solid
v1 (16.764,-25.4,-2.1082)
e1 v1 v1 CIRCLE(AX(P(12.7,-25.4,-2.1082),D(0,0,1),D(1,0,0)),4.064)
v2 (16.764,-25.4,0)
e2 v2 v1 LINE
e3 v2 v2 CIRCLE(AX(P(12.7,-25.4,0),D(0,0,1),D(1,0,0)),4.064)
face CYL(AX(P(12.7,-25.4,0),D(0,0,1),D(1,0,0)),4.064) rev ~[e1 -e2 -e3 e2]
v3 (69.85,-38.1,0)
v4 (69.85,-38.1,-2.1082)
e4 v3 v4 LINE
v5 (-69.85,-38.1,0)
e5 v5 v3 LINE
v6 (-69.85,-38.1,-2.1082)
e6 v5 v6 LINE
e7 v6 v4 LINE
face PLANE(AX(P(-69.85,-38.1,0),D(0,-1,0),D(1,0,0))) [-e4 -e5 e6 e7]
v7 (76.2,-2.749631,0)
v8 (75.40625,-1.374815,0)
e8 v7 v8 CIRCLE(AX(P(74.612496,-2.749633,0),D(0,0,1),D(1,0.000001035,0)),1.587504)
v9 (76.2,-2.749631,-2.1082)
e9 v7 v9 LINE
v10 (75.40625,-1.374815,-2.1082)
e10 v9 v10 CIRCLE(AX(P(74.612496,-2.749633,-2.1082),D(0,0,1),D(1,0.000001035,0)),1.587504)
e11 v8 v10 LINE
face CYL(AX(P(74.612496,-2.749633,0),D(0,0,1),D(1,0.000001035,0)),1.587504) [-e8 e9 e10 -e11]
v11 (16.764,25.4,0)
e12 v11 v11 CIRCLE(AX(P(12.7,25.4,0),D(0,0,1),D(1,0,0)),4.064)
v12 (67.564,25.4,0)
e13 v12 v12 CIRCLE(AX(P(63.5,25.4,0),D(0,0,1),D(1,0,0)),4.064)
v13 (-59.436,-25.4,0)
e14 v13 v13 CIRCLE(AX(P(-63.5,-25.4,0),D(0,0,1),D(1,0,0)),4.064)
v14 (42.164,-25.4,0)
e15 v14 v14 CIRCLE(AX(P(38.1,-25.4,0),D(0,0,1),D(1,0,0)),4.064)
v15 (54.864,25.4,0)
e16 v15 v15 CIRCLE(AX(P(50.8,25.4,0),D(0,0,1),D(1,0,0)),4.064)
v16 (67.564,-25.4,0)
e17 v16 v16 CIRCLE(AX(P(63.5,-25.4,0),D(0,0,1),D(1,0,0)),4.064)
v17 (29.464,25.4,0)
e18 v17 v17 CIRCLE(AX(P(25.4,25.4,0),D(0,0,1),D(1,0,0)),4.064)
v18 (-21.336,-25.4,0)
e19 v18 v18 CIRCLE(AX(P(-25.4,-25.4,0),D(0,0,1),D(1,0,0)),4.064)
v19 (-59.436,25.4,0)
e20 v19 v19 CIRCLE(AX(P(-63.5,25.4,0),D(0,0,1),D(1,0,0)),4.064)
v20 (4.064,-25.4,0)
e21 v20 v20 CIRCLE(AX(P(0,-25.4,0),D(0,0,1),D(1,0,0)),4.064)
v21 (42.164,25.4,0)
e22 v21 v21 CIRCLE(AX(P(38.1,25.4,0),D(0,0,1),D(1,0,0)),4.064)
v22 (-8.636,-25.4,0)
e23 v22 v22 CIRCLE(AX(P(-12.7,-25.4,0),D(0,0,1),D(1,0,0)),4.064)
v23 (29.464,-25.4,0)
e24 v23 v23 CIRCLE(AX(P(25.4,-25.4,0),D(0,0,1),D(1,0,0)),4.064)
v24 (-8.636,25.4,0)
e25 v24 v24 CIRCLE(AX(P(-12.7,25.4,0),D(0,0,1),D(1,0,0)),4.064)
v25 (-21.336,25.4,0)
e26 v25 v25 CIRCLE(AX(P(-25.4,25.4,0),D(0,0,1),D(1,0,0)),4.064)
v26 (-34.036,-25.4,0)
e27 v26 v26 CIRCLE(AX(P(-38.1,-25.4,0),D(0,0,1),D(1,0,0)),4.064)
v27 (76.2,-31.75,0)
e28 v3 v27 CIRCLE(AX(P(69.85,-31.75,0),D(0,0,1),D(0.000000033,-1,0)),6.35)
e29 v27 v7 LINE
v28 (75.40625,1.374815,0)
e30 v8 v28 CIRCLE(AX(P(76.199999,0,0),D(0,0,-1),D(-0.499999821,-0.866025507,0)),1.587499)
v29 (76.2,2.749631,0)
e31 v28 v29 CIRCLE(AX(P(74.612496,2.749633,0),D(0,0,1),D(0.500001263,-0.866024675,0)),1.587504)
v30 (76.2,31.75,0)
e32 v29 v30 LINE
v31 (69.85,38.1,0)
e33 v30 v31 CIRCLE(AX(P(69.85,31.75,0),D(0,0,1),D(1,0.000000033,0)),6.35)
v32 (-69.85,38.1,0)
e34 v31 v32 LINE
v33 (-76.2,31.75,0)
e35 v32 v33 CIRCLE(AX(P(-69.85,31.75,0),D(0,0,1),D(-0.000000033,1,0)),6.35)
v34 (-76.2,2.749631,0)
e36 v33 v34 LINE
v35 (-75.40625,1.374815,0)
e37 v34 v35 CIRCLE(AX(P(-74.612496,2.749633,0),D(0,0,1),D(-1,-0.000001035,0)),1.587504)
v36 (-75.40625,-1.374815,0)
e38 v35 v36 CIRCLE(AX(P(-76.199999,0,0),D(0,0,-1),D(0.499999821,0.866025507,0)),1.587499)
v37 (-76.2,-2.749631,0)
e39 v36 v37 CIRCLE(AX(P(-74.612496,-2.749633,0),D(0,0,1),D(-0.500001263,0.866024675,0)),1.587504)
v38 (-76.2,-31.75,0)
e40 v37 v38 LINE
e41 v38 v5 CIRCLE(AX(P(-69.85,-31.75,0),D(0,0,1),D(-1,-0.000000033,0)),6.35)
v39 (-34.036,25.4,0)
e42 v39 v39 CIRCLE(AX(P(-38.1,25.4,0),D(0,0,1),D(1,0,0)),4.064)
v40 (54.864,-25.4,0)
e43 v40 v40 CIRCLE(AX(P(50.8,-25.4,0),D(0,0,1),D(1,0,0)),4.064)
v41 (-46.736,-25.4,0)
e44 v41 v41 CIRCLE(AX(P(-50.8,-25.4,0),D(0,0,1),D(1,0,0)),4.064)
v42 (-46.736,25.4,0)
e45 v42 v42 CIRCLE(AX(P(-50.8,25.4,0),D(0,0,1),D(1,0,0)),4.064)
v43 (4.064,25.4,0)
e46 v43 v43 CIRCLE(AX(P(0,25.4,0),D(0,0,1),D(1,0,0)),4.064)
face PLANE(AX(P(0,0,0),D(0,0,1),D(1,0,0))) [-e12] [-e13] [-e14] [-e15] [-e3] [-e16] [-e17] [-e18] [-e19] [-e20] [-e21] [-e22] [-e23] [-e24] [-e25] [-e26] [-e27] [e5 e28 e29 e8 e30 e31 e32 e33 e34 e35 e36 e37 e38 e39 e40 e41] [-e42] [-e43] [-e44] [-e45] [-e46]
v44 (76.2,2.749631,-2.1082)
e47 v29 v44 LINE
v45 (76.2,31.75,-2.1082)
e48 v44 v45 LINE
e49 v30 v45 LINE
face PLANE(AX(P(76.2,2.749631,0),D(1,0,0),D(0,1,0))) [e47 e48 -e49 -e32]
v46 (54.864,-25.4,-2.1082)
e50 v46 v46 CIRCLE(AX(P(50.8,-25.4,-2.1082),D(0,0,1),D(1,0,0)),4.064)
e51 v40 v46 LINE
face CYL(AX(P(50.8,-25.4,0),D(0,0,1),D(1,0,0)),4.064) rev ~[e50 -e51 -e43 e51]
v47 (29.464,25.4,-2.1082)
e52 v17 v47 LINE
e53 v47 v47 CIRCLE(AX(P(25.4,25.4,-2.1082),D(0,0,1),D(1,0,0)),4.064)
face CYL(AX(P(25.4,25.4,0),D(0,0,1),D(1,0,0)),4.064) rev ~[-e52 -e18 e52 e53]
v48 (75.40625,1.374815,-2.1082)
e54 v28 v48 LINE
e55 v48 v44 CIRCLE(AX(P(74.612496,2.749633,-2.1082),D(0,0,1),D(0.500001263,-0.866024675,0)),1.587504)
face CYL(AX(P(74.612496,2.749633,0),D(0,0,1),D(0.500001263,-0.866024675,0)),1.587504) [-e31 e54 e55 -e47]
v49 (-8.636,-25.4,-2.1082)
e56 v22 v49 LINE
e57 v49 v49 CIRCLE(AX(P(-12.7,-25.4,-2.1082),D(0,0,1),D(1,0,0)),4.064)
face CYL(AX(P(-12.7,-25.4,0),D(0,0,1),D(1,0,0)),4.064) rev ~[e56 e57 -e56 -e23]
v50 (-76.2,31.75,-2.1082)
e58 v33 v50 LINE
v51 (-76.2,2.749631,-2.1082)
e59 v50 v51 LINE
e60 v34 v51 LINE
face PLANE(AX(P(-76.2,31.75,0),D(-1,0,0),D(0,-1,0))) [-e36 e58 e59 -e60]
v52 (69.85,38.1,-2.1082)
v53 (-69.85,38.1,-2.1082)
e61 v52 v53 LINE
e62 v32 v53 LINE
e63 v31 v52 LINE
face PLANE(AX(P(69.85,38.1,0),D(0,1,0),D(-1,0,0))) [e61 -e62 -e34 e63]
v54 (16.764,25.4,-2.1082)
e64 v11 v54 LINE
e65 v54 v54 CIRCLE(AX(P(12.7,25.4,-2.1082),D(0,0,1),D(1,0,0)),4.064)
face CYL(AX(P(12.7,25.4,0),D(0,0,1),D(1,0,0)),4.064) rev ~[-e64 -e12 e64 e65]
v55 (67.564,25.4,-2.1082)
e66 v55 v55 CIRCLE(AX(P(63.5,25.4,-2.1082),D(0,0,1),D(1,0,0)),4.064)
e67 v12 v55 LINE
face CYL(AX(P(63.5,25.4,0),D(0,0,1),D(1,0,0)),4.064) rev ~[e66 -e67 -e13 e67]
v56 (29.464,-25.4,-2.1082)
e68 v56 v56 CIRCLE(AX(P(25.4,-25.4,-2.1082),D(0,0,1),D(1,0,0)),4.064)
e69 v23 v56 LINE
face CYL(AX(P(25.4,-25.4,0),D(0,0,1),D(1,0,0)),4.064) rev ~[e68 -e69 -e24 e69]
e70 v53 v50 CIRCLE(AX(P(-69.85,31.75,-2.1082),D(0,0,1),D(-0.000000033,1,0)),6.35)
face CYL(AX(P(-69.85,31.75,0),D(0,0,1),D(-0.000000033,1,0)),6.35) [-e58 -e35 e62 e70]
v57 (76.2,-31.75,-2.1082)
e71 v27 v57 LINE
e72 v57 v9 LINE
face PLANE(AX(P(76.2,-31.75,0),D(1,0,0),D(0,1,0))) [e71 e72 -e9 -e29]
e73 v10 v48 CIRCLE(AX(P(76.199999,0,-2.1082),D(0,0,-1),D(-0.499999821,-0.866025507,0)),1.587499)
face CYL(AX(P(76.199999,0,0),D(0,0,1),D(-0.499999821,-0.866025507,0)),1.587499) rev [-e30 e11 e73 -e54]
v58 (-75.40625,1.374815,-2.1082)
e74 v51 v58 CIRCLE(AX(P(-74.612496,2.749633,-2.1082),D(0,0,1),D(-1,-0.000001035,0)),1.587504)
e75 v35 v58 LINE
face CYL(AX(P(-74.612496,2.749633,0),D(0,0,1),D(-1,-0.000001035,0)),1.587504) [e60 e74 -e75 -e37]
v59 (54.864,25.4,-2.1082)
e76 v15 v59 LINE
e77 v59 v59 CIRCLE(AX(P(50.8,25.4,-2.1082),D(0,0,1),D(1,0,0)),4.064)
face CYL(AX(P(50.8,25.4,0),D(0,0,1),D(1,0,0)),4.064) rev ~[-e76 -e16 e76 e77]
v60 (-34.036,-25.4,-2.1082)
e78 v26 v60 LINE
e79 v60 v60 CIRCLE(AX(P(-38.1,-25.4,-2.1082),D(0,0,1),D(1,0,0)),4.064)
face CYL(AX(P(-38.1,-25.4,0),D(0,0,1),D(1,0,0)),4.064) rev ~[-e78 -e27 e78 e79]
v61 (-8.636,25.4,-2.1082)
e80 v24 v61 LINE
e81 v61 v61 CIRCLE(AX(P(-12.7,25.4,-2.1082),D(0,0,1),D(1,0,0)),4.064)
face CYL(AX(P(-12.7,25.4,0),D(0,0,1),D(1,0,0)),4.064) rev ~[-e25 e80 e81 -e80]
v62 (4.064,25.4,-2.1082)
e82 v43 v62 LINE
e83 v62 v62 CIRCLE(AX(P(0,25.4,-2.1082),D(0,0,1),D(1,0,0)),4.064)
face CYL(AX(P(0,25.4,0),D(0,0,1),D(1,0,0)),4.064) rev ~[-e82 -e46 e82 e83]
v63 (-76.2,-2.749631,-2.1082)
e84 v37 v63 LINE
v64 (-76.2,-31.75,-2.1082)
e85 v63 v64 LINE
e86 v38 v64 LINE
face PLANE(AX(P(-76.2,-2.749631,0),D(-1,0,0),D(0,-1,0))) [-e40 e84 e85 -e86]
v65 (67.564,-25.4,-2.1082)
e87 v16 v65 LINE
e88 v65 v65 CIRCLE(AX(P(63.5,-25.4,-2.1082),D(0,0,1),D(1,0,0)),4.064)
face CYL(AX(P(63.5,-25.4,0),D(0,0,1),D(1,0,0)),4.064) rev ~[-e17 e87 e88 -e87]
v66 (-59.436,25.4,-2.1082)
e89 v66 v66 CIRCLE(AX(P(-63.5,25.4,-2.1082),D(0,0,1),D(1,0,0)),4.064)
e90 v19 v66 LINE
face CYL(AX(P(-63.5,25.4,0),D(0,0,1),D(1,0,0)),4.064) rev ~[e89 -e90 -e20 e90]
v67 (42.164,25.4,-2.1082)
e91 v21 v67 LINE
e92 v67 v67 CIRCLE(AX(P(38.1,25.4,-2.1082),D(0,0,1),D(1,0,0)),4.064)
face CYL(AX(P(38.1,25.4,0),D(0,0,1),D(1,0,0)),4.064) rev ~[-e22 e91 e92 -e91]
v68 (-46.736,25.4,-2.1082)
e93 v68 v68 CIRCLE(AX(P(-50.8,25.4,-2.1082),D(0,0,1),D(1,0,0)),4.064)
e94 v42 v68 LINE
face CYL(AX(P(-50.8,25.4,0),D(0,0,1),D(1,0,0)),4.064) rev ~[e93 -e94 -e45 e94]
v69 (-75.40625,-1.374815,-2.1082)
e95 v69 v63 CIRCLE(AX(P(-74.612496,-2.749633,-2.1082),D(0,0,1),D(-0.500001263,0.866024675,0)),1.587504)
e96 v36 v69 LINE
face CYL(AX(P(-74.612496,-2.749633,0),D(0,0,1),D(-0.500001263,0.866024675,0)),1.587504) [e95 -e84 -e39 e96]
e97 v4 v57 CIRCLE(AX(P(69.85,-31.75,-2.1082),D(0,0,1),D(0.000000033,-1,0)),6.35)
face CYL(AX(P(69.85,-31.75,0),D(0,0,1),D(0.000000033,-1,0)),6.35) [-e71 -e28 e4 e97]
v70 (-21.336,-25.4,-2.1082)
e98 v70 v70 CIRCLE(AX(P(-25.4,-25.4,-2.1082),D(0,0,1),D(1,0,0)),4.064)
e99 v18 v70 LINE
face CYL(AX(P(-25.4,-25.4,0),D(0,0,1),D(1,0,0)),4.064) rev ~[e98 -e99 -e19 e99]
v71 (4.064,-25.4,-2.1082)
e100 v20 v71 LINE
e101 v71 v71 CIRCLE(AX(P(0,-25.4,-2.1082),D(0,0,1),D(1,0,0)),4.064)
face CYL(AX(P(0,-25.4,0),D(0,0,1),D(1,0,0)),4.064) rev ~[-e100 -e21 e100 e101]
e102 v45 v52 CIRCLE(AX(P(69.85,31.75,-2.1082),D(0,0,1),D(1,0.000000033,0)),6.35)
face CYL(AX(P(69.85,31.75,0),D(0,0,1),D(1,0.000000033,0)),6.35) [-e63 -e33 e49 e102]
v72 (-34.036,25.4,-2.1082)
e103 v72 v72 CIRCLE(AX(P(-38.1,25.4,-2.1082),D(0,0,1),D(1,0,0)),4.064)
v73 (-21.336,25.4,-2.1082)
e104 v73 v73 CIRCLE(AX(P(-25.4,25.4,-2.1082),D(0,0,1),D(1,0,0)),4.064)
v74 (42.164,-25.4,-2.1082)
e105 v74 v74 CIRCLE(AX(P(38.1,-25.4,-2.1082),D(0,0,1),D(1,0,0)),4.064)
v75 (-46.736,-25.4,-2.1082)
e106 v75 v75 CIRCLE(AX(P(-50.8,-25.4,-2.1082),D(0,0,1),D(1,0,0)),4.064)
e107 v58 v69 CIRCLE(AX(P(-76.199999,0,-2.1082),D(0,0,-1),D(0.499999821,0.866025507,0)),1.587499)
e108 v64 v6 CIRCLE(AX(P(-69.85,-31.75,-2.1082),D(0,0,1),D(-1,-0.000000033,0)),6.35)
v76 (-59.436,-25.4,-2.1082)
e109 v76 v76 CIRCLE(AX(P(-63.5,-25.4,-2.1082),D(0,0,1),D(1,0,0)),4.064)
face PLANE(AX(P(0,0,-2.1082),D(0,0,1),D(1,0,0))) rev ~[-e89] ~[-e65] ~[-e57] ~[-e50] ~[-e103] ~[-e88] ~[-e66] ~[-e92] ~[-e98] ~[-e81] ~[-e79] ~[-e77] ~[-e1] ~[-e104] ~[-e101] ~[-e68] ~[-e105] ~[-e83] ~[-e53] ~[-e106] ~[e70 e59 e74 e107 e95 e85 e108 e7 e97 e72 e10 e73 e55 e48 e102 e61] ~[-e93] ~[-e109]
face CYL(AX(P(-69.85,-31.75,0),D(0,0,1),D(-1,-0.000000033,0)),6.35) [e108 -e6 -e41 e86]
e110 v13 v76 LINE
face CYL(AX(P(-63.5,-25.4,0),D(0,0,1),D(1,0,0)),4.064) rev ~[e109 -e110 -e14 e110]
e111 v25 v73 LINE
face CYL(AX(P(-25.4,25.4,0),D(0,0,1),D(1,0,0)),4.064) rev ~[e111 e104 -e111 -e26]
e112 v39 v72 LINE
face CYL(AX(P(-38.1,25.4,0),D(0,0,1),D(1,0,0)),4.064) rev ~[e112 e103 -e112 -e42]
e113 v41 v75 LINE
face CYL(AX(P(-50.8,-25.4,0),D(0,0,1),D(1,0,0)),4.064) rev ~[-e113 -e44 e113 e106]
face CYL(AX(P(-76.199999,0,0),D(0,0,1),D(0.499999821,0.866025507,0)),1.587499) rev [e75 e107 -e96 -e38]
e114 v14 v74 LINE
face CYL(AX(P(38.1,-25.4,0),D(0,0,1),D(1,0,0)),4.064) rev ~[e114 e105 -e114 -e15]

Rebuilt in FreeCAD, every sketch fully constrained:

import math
import FreeCAD as App
import Part
import Sketcher
Q = App.Units.Quantity

doc = App.newDocument("Part")
body = doc.addObject("PartDesign::Body", "Body")

# Sketch on XY plane
sketch1 = body.newObject("Sketcher::SketchObject", "Sketch")
sketch1.AttachmentSupport = (doc.getObject("XY_Plane"), [""])
sketch1.MapMode = "FlatFace"
sketch1.addGeometry([
    Part.LineSegment(App.Vector(69.85, 38.1, 0), App.Vector(-69.85, 38.1, 0)),  # 0
    Part.ArcOfCircle(Part.Circle(App.Vector(-69.85, 31.75, 0), App.Vector(0, 0, 1), 6.35), math.radians(90.000002), math.radians(179.999998)),  # 1
    Part.LineSegment(App.Vector(-76.2, 31.75, 0), App.Vector(-76.2, 2.749631, 0)),  # 2
    Part.ArcOfCircle(Part.Circle(App.Vector(-74.612496, 2.749633, 0), App.Vector(0, 0, 1), 1.587504), math.radians(-179.999941), math.radians(-120.000084)),  # 3
    Part.ArcOfCircle(Part.Circle(App.Vector(-76.199999, 0, 0), App.Vector(0, 0, 1), 1.587499), math.radians(-60.000012), math.radians(60.000012)),  # 4
    Part.ArcOfCircle(Part.Circle(App.Vector(-74.612496, -2.749633, 0), App.Vector(0, 0, 1), 1.587504), math.radians(120.000084), math.radians(179.999941)),  # 5
    Part.LineSegment(App.Vector(-76.2, -2.749631, 0), App.Vector(-76.2, -31.75, 0)),  # 6
    Part.ArcOfCircle(Part.Circle(App.Vector(-69.85, -31.75, 0), App.Vector(0, 0, 1), 6.35), math.radians(-179.999998), math.radians(-90.000002)),  # 7
    Part.LineSegment(App.Vector(-69.85, -38.1, 0), App.Vector(69.85, -38.1, 0)),  # 8
    Part.ArcOfCircle(Part.Circle(App.Vector(69.85, -31.75, 0), App.Vector(0, 0, 1), 6.35), math.radians(-89.999998), math.radians(-0.000002)),  # 9
    Part.LineSegment(App.Vector(76.2, -31.75, 0), App.Vector(76.2, -2.749631, 0)),  # 10
    Part.ArcOfCircle(Part.Circle(App.Vector(74.612496, -2.749633, 0), App.Vector(0, 0, 1), 1.587504), math.radians(0.000059), math.radians(59.999916)),  # 11
    Part.ArcOfCircle(Part.Circle(App.Vector(76.199999, 0, 0), App.Vector(0, 0, 1), 1.587499), math.radians(119.999988), math.radians(240.000012)),  # 12
    Part.ArcOfCircle(Part.Circle(App.Vector(74.612496, 2.749633, 0), App.Vector(0, 0, 1), 1.587504), math.radians(-59.999916), math.radians(-0.000059)),  # 13
    Part.LineSegment(App.Vector(76.2, 2.749631, 0), App.Vector(76.2, 31.75, 0)),  # 14
    Part.ArcOfCircle(Part.Circle(App.Vector(69.85, 31.75, 0), App.Vector(0, 0, 1), 6.35), math.radians(0.000002), math.radians(89.999998)),  # 15
    Part.Circle(App.Vector(-63.5, -25.4, 0), App.Vector(0, 0, 1), 4.064),  # 16
    Part.Circle(App.Vector(-50.8, -25.4, 0), App.Vector(0, 0, 1), 4.064),  # 17
    Part.Circle(App.Vector(-38.1, -25.4, 0), App.Vector(0, 0, 1), 4.064),  # 18
    Part.Circle(App.Vector(-25.4, -25.4, 0), App.Vector(0, 0, 1), 4.064),  # 19
    Part.Circle(App.Vector(-12.7, -25.4, 0), App.Vector(0, 0, 1), 4.064),  # 20
    Part.Circle(App.Vector(0, -25.4, 0), App.Vector(0, 0, 1), 4.064),  # 21
    Part.Circle(App.Vector(12.7, -25.4, 0), App.Vector(0, 0, 1), 4.064),  # 22
    Part.Circle(App.Vector(25.4, -25.4, 0), App.Vector(0, 0, 1), 4.064),  # 23
    Part.Circle(App.Vector(38.1, -25.4, 0), App.Vector(0, 0, 1), 4.064),  # 24
    Part.Circle(App.Vector(50.8, -25.4, 0), App.Vector(0, 0, 1), 4.064),  # 25
    Part.Circle(App.Vector(63.5, -25.4, 0), App.Vector(0, 0, 1), 4.064),  # 26
    Part.Circle(App.Vector(-63.5, 25.4, 0), App.Vector(0, 0, 1), 4.064),  # 27
    Part.Circle(App.Vector(-50.8, 25.4, 0), App.Vector(0, 0, 1), 4.064),  # 28
    Part.Circle(App.Vector(-38.1, 25.4, 0), App.Vector(0, 0, 1), 4.064),  # 29
    Part.Circle(App.Vector(-25.4, 25.4, 0), App.Vector(0, 0, 1), 4.064),  # 30
    Part.Circle(App.Vector(-12.7, 25.4, 0), App.Vector(0, 0, 1), 4.064),  # 31
    Part.Circle(App.Vector(0, 25.4, 0), App.Vector(0, 0, 1), 4.064),  # 32
    Part.Circle(App.Vector(12.7, 25.4, 0), App.Vector(0, 0, 1), 4.064),  # 33
    Part.Circle(App.Vector(25.4, 25.4, 0), App.Vector(0, 0, 1), 4.064),  # 34
    Part.Circle(App.Vector(38.1, 25.4, 0), App.Vector(0, 0, 1), 4.064),  # 35
    Part.Circle(App.Vector(50.8, 25.4, 0), App.Vector(0, 0, 1), 4.064),  # 36
    Part.Circle(App.Vector(63.5, 25.4, 0), App.Vector(0, 0, 1), 4.064),  # 37
], False)
sketch1.addConstraint([
    Sketcher.Constraint("Tangent", 0, 2, 1, 1),
    Sketcher.Constraint("Tangent", 1, 2, 2, 1),
    Sketcher.Constraint("Tangent", 2, 2, 3, 1),
    Sketcher.Constraint("Tangent", 3, 2, 4, 2),
    Sketcher.Constraint("Tangent", 4, 1, 5, 1),
    Sketcher.Constraint("Tangent", 5, 2, 6, 1),
    Sketcher.Constraint("Tangent", 6, 2, 7, 1),
    Sketcher.Constraint("Tangent", 7, 2, 8, 1),
    Sketcher.Constraint("Tangent", 8, 2, 9, 1),
    Sketcher.Constraint("Tangent", 9, 2, 10, 1),
    Sketcher.Constraint("Tangent", 10, 2, 11, 1),
    Sketcher.Constraint("Tangent", 11, 2, 12, 2),
    Sketcher.Constraint("Tangent", 12, 1, 13, 1),
    Sketcher.Constraint("Tangent", 13, 2, 14, 1),
    Sketcher.Constraint("Tangent", 14, 2, 15, 1),
    Sketcher.Constraint("Tangent", 15, 2, 0, 1),
    Sketcher.Constraint("Horizontal", 0),
    Sketcher.Constraint("Vertical", 2),
    Sketcher.Constraint("Vertical", 6),
    Sketcher.Constraint("Horizontal", 8),
    Sketcher.Constraint("Vertical", 10),
    Sketcher.Constraint("Vertical", 14),
    Sketcher.Constraint("Equal", 3, 5),
    Sketcher.Constraint("Equal", 1, 7),
    Sketcher.Constraint("Equal", 7, 9),
    Sketcher.Constraint("Equal", 5, 11),
    Sketcher.Constraint("Equal", 4, 12),
    Sketcher.Constraint("Equal", 11, 13),
    Sketcher.Constraint("Equal", 9, 15),
    Sketcher.Constraint("Equal", 16, 17),
    Sketcher.Constraint("Equal", 17, 18),
    Sketcher.Constraint("Equal", 18, 19),
    Sketcher.Constraint("Equal", 19, 20),
    Sketcher.Constraint("Equal", 20, 21),
    Sketcher.Constraint("Equal", 21, 22),
    Sketcher.Constraint("Equal", 22, 23),
    Sketcher.Constraint("Equal", 23, 24),
    Sketcher.Constraint("Equal", 24, 25),
    Sketcher.Constraint("Equal", 25, 26),
    Sketcher.Constraint("Equal", 26, 27),
    Sketcher.Constraint("Equal", 27, 28),
    Sketcher.Constraint("Equal", 28, 29),
    Sketcher.Constraint("Equal", 29, 30),
    Sketcher.Constraint("Equal", 30, 31),
    Sketcher.Constraint("Equal", 31, 32),
    Sketcher.Constraint("Equal", 32, 33),
    Sketcher.Constraint("Equal", 33, 34),
    Sketcher.Constraint("Equal", 34, 35),
    Sketcher.Constraint("Equal", 35, 36),
    Sketcher.Constraint("Equal", 36, 37),
    Sketcher.Constraint("Symmetric", 1, 3, 9, 3, -1, 1),
    Sketcher.Constraint("Symmetric", 4, 3, 12, 3, -1, 1),
    Sketcher.Constraint("Symmetric", 26, 3, 27, 3, -1, 1),
    Sketcher.Constraint("Symmetric", 25, 3, 28, 3, -1, 1),
    Sketcher.Constraint("Symmetric", 24, 3, 29, 3, -1, 1),
    Sketcher.Constraint("Symmetric", 23, 3, 30, 3, -1, 1),
    Sketcher.Constraint("Symmetric", 22, 3, 31, 3, -1, 1),
    Sketcher.Constraint("Symmetric", 21, 3, 32, 3, -1, 1),
    Sketcher.Constraint("Symmetric", 20, 3, 33, 3, -1, 1),
    Sketcher.Constraint("Symmetric", 19, 3, 34, 3, -1, 1),
    Sketcher.Constraint("Symmetric", 18, 3, 35, 3, -1, 1),
    Sketcher.Constraint("Symmetric", 17, 3, 36, 3, -1, 1),
    Sketcher.Constraint("Symmetric", 16, 3, 37, 3, -1, 1),
    Sketcher.Constraint("Symmetric", 5, 3, 11, 3, -2),
    Sketcher.Constraint("Symmetric", 20, 3, 22, 3, -2),
    Sketcher.Constraint("Symmetric", 19, 3, 23, 3, -2),
    Sketcher.Constraint("Symmetric", 18, 3, 24, 3, -2),
    Sketcher.Constraint("Symmetric", 17, 3, 25, 3, -2),
    Sketcher.Constraint("Symmetric", 16, 3, 26, 3, -2),
    Sketcher.Constraint("PointOnObject", 21, 3, -2),
    Sketcher.Constraint("Horizontal", 3, 3, 13, 3),
    Sketcher.Constraint("Horizontal", 16, 3, 17, 3),
    Sketcher.Constraint("Horizontal", 17, 3, 18, 3),
    Sketcher.Constraint("Horizontal", 18, 3, 19, 3),
    Sketcher.Constraint("Horizontal", 19, 3, 20, 3),
    Sketcher.Constraint("Horizontal", 20, 3, 21, 3),
    Sketcher.Constraint("Vertical", 4, 3, 1, 2),
    Sketcher.Constraint("Diameter", 16, Q("0.32 in")),
    Sketcher.Constraint("Radius", 1, Q("0.25 in")),
    Sketcher.Constraint("DistanceX", 0, 2, 0, 1, Q("5.5 in")),
    Sketcher.Constraint("DistanceY", 16, 3, -1, 1, Q("1 in")),
    Sketcher.Constraint("DistanceX", 17, 3, -1, 1, Q("2 in")),
    Sketcher.Constraint("DistanceX", 19, 3, -1, 1, Q("1 in")),
    Sketcher.Constraint("Radius", 4, Q("0.0625 in")),
    Sketcher.Constraint("DistanceX", 16, 3, 18, 3, Q("1 in")),
    Sketcher.Constraint("DistanceX", 18, 3, 20, 3, Q("1 in")),
    Sketcher.Constraint("DistanceX", 20, 3, 22, 3, Q("1 in")),
    Sketcher.Constraint("DistanceY", -1, 1, 0, 2, Q("1.5 in")),
    Sketcher.Constraint("Radius", 3, Q("0.0625002 in")),
])
pad1 = body.newObject("PartDesign::Pad", "Pad")
pad1.Profile = sketch1
pad1.Length = Q("0.083 in")
pad1.Reversed = True

doc.recompute()
